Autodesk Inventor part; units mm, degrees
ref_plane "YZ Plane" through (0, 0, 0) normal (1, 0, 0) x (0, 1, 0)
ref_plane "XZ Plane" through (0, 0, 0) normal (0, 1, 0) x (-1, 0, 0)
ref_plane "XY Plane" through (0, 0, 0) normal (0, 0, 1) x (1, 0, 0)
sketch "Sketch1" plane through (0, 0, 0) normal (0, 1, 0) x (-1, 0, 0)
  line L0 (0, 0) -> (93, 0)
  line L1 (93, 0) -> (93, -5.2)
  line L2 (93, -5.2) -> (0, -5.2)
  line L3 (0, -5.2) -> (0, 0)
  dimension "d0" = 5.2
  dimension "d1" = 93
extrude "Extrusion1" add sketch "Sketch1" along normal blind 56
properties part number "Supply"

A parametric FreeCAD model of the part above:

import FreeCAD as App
import Part
import Sketcher

doc = App.newDocument("Part")
body = doc.addObject("PartDesign::Body", "Body")

# Sketch on XZ plane
sketch1 = body.newObject("Sketcher::SketchObject", "Sketch")
sketch1.AttachmentSupport = (doc.getObject("XZ_Plane"), [""])
sketch1.MapMode = "FlatFace"
sketch1.addGeometry(Part.LineSegment(App.Vector(-93, 0, 0), App.Vector(0, 0, 0)), False)
sketch1.addGeometry(Part.LineSegment(App.Vector(0, 0, 0), App.Vector(0, -5.2, 0)), False)
sketch1.addGeometry(Part.LineSegment(App.Vector(0, -5.2, 0), App.Vector(-93, -5.2, 0)), False)
sketch1.addGeometry(Part.LineSegment(App.Vector(-93, -5.2, 0), App.Vector(-93, 0, 0)), False)
sketch1.addConstraint(Sketcher.Constraint("Coincident", 0, 2, 1, 1))
sketch1.addConstraint(Sketcher.Constraint("Coincident", 1, 2, 2, 1))
sketch1.addConstraint(Sketcher.Constraint("Coincident", 2, 2, 3, 1))
sketch1.addConstraint(Sketcher.Constraint("Coincident", 3, 2, 0, 1))
sketch1.addConstraint(Sketcher.Constraint("Horizontal", 0))
sketch1.addConstraint(Sketcher.Constraint("Vertical", 1))
sketch1.addConstraint(Sketcher.Constraint("Horizontal", 2))
sketch1.addConstraint(Sketcher.Constraint("Vertical", 3))
sketch1.addConstraint(Sketcher.Constraint("Coincident", 0, 2, -1, 1))
sketch1.addConstraint(Sketcher.Constraint("DistanceX", 0, 1, 0, 2, 93.0))
sketch1.addConstraint(Sketcher.Constraint("DistanceY", 1, 2, 1, 1, 5.2))
pad1 = body.newObject("PartDesign::Pad", "Pad")
pad1.Profile = sketch1
pad1.Length = 56
pad1.Reversed = True

doc.recompute()
